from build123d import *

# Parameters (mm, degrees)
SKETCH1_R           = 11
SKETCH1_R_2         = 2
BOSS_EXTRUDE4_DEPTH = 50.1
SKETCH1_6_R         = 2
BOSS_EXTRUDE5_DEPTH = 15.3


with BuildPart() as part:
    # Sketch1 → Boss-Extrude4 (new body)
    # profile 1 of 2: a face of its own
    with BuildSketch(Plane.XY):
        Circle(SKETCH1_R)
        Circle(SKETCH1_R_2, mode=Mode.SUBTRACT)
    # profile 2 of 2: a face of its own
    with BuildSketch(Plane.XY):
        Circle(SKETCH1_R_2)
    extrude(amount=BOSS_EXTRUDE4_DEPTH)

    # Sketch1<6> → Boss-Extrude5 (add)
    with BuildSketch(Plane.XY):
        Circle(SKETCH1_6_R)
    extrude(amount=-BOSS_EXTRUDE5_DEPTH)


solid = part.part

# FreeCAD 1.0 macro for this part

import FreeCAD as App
import Part
import Sketcher

V = App.Vector
Q = App.Units.Quantity

doc = App.newDocument("Part")
body = doc.addObject("PartDesign::Body", "Body")

# Sketch on XY plane
sketch1 = doc.addObject("Sketcher::SketchObject", "Sketch")
body.addObject(sketch1)
sketch1.AttachmentSupport = (doc.XY_Plane, [""])
sketch1.MapMode = "FlatFace"
sketch1.addGeometry(Part.Circle(V(0, 0, 0), V(0, 0, 1), 11), False)
sketch1.addConstraint(Sketcher.Constraint("Coincident", 0, 3, -1, 1))
sketch1.addConstraint(Sketcher.Constraint("Diameter", 0, Q("22 mm")))
pad1 = doc.addObject("PartDesign::Pad", "Pad")
body.addObject(pad1)
pad1.Profile = sketch1
pad1.Length = 50.1

# Sketch on XY plane
sketch2 = doc.addObject("Sketcher::SketchObject", "Sketch001")
body.addObject(sketch2)
sketch2.AttachmentSupport = (doc.XY_Plane, [""])
sketch2.MapMode = "FlatFace"
sketch2.addGeometry(Part.Circle(V(0, 0, 0), V(0, 0, 1), 2), False)
sketch2.addConstraint(Sketcher.Constraint("Coincident", 0, 3, -1, 1))
sketch2.addConstraint(Sketcher.Constraint("Diameter", 0, Q("4 mm")))
pad2 = doc.addObject("PartDesign::Pad", "Pad001")
body.addObject(pad2)
pad2.Profile = sketch2
pad2.Length = 15.3
pad2.Reversed = True

doc.recompute()
